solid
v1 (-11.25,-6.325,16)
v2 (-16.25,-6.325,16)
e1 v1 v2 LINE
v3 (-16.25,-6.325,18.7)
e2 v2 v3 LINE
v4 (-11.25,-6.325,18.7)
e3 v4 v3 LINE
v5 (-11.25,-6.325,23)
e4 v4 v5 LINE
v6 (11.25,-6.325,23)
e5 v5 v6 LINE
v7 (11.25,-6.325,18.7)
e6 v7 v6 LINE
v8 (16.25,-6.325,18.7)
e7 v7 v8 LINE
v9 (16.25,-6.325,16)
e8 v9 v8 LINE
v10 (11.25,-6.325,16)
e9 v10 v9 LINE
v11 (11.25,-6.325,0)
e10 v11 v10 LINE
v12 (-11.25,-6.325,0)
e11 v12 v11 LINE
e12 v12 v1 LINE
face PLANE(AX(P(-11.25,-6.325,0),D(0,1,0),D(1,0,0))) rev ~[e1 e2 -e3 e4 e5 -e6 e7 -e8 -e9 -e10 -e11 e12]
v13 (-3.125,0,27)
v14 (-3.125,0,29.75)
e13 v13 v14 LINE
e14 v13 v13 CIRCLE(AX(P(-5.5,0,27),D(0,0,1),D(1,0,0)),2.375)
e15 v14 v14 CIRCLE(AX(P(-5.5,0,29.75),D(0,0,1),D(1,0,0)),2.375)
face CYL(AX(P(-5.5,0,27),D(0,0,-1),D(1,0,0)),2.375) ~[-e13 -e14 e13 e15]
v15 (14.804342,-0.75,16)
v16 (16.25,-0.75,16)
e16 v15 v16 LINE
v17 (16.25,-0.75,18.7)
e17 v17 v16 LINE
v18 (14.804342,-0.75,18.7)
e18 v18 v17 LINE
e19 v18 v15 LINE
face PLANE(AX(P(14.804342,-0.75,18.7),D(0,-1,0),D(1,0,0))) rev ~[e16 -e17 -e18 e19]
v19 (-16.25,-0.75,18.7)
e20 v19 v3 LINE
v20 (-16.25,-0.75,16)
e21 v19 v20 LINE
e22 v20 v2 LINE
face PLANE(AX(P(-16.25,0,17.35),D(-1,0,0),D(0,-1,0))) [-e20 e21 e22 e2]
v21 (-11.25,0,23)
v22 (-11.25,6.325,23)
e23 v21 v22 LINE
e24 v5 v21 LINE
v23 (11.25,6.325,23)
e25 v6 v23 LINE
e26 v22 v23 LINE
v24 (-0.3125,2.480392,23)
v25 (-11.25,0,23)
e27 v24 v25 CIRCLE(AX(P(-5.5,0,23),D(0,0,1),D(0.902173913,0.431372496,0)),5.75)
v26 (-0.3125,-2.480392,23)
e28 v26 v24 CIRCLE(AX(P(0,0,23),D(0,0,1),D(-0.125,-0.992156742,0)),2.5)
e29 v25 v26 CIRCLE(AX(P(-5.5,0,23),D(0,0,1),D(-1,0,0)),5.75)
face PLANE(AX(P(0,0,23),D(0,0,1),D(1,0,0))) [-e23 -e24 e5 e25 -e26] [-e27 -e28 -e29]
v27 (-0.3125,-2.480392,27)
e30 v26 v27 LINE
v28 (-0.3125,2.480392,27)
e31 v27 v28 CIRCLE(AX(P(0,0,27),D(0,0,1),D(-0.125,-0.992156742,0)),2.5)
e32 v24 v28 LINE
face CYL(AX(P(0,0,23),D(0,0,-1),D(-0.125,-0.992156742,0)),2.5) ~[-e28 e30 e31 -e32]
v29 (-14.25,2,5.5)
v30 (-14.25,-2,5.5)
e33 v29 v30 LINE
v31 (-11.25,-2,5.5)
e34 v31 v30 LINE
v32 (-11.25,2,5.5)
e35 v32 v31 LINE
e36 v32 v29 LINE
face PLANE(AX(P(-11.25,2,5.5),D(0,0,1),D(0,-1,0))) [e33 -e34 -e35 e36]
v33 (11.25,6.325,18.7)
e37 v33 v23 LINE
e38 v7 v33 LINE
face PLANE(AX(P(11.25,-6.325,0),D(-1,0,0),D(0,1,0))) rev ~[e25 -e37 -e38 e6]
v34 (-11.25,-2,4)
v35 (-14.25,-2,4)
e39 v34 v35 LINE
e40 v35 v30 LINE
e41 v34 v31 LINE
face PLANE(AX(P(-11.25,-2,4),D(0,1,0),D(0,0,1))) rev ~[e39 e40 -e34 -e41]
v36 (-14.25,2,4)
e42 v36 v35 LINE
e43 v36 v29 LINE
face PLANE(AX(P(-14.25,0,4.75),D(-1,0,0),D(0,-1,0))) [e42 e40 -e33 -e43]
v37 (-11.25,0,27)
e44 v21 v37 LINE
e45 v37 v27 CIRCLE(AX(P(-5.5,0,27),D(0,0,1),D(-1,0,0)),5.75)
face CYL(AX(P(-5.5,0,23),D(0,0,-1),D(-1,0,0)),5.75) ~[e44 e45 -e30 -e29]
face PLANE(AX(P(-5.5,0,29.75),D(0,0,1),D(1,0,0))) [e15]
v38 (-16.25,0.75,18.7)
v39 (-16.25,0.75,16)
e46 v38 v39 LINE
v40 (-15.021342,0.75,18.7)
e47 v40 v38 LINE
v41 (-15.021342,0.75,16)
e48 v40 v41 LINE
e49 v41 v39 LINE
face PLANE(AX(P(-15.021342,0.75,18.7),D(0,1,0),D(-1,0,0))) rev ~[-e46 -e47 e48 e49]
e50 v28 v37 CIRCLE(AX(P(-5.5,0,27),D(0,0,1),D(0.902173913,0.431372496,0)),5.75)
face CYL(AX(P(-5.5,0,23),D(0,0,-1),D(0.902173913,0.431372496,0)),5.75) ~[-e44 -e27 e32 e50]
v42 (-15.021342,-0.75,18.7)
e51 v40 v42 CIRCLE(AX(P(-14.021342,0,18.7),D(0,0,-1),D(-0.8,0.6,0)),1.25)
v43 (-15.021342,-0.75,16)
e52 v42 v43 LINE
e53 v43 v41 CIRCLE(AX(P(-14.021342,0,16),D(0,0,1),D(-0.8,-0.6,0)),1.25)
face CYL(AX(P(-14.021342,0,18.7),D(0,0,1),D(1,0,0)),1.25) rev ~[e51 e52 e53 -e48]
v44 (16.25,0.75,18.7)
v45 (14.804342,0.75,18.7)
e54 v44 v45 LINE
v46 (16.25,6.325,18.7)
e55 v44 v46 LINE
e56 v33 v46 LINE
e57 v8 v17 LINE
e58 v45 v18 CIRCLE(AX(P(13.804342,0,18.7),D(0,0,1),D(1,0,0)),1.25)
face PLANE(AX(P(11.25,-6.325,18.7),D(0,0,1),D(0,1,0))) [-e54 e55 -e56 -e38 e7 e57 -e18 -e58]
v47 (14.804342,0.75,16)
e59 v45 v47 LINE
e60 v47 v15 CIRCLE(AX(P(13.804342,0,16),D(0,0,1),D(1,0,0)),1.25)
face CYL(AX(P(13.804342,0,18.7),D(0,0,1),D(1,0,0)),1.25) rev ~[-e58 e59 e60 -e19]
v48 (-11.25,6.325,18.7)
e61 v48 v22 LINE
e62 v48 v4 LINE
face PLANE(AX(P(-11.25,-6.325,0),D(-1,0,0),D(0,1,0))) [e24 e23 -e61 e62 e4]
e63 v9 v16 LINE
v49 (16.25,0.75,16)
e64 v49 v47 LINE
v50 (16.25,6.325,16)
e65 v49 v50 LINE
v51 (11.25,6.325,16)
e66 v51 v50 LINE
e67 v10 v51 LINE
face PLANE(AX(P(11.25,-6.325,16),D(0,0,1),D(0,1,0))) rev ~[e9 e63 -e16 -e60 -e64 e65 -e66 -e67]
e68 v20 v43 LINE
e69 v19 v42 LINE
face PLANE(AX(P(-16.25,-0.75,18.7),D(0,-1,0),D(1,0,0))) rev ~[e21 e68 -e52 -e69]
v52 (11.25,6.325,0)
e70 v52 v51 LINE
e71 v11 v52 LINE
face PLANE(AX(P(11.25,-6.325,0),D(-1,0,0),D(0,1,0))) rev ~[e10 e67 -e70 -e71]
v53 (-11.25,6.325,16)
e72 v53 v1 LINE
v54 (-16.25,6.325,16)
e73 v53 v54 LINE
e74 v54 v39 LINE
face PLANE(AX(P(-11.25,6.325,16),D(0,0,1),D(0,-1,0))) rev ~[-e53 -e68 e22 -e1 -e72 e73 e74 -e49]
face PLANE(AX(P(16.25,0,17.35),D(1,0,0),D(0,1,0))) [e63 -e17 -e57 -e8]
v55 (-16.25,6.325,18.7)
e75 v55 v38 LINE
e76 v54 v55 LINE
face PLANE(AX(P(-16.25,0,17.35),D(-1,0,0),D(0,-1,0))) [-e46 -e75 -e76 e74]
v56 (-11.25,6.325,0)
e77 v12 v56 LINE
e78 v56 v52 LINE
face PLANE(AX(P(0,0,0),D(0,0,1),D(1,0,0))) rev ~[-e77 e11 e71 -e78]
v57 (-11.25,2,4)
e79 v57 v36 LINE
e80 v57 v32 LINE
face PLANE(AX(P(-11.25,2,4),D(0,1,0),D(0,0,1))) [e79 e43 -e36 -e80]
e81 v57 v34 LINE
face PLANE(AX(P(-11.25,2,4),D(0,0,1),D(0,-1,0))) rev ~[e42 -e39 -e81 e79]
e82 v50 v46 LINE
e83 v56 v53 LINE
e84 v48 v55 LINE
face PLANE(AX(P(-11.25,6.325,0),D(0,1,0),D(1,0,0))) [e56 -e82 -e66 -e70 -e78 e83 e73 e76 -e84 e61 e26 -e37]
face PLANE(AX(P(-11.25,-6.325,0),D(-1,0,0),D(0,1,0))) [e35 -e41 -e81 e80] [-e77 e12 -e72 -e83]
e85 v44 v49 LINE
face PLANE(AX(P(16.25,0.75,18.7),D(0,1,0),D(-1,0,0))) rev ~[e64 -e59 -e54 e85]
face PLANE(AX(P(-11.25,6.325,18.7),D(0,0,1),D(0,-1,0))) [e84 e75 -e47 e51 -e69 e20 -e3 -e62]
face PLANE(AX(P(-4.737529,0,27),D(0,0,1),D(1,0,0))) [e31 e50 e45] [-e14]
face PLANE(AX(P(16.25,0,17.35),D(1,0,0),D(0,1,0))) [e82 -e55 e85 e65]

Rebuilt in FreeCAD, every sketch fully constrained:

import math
import FreeCAD as App
import Part
import Sketcher
from FreeCAD import Vector
Q = App.Units.Quantity


def add_polygon(sketch, points):
    """Adds a closed chain of lines whose ends are joined by coincident constraints."""
    first, n = sketch.GeometryCount, len(points)
    for a, b in zip(points, points[1:] + points[:1]):
        sketch.addGeometry(Part.LineSegment(App.Vector(*a, 0), App.Vector(*b, 0)), False)
    for i in range(n):
        sketch.addConstraint(Sketcher.Constraint("Coincident", first + i, 2, first + (i + 1) % n, 1))

doc = App.newDocument("Part")
params = doc.addObject("Spreadsheet::Sheet", "Params")
for row, (alias, value) in enumerate([
    ("sketch1_width", "22.5 mm"),
    ("sketch1_height", "12.65 mm"),
    ("pad1_length", "23 mm"),
    ("sketch2_height", "2.7 mm"),
    ("sketch2_width", "12.65 mm"),
    ("pad2_length", "5 mm"),
    ("sketch3_width", "4 mm"),
    ("sketch3_height", "1.5 mm"),
    ("pad3_length", "3 mm"),
    ("sketch4_diameter", "2.5 mm"),
    ("pocket1_length", "2.7 mm"),
    ("sketch5_height", "2.7 mm"),
    ("sketch5_width", "12.65 mm"),
    ("pad4_length", "5 mm"),
    ("sketch6_diameter", "2.5 mm"),
    ("sketch7_radius", "2.5 mm"),
    ("sketch7_radius2", "5.75 mm"),
    ("pad5_length", "4 mm"),
    ("sketch8_diameter", "4.75 mm"),
    ("pad6_length", "2.75 mm"),
    ("sketch9_radius", "1.25 mm"),
    ("sketch9_height", "1.5 mm"),
    ("sketch10_radius", "1.25 mm"),
    ("sketch10_height", "1.5 mm"),
], start=1):
    params.set(f"A{row}", alias)
    params.set(f"B{row}", "=" + value)
    params.setAlias(f"B{row}", alias)

body = doc.addObject("PartDesign::Body", "Body")

sketch1 = doc.addObject("Sketcher::SketchObject", "Sketch")
body.addObject(sketch1)
sketch1.AttachmentSupport = (doc.XY_Plane, [""])
sketch1.MapMode = "FlatFace"
add_polygon(sketch1, [(-11, 6), (-11, -6), (11, -6), (11, 6)])
sketch1.addConstraint([
    Sketcher.Constraint("Vertical", 0),
    Sketcher.Constraint("Horizontal", 1),
    Sketcher.Constraint("Vertical", 2),
    Sketcher.Constraint("Horizontal", 3),
    Sketcher.Constraint("Symmetric", 0, 2, 2, 2, -1, 1),
    Sketcher.Constraint("DistanceX", 1, 1, 1, 2, Q("22.5 mm")),
    Sketcher.Constraint("DistanceY", 0, 2, 0, 1, Q("12.65 mm")),
])
sketch1.setExpression("Constraints[9]", "Params.sketch1_width")
sketch1.setExpression("Constraints[10]", "Params.sketch1_height")
pad1 = doc.addObject("PartDesign::Pad", "Pad")
body.addObject(pad1)
pad1.Profile = sketch1
pad1.setExpression("Length", "Params.pad1_length")

sketch2 = doc.addObject("Sketcher::SketchObject", "Sketch001")
body.addObject(sketch2)
sketch2.AttachmentSupport = (doc.YZ_Plane, [""])
sketch2.MapMode = "FlatFace"
sketch2.AttachmentOffset = App.Placement(Vector(0, 0, -11.25), App.Rotation())
add_polygon(sketch2, [(6.3, 18.7), (6.3, 16), (-6.3, 16), (-6.3, 18.7)])
sketch2.addConstraint([
    Sketcher.Constraint("Vertical", 0),
    Sketcher.Constraint("Horizontal", 1),
    Sketcher.Constraint("Vertical", 2),
    Sketcher.Constraint("Horizontal", 3),
    Sketcher.Constraint("DistanceY", 0, 2, 0, 1, Q("2.7 mm")),
    Sketcher.Constraint("DistanceY", -1, 1, 0, 2, Q("16 mm")),
    Sketcher.Constraint("DistanceX", 1, 2, 1, 1, Q("12.65 mm")),
    Sketcher.Constraint("DistanceX", -1, 1, 0, 2, Q("6.325 mm")),
])
sketch2.setExpression("Constraints[8]", "Params.sketch2_height")
sketch2.setExpression("Constraints[10]", "Params.sketch2_width")
pad2 = doc.addObject("PartDesign::Pad", "Pad001")
body.addObject(pad2)
pad2.Profile = sketch2
pad2.setExpression("Length", "Params.pad2_length")
pad2.Reversed = True

sketch3 = doc.addObject("Sketcher::SketchObject", "Sketch002")
body.addObject(sketch3)
sketch3.AttachmentSupport = (doc.YZ_Plane, [""])
sketch3.MapMode = "FlatFace"
sketch3.AttachmentOffset = App.Placement(Vector(0, 0, -11.25), App.Rotation())
add_polygon(sketch3, [(2, 5.5), (2, 4), (-2, 4), (-2, 5.5)])
sketch3.addConstraint([
    Sketcher.Constraint("Vertical", 0),
    Sketcher.Constraint("Horizontal", 1),
    Sketcher.Constraint("Vertical", 2),
    Sketcher.Constraint("Horizontal", 3),
    Sketcher.Constraint("DistanceX", 1, 2, 1, 1, Q("4 mm")),
    Sketcher.Constraint("DistanceY", 0, 2, 0, 1, Q("1.5 mm")),
    Sketcher.Constraint("DistanceX", -1, 1, 0, 2, Q("2 mm")),
    Sketcher.Constraint("DistanceY", -1, 1, 0, 2, Q("4 mm")),
])
sketch3.setExpression("Constraints[8]", "Params.sketch3_width")
sketch3.setExpression("Constraints[9]", "Params.sketch3_height")
pad3 = doc.addObject("PartDesign::Pad", "Pad002")
body.addObject(pad3)
pad3.Profile = sketch3
pad3.setExpression("Length", "Params.pad3_length")
pad3.Reversed = True

sketch4 = doc.addObject("Sketcher::SketchObject", "Sketch003")
body.addObject(sketch4)
sketch4.AttachmentSupport = (doc.XY_Plane, [""])
sketch4.MapMode = "FlatFace"
sketch4.AttachmentOffset = App.Placement(Vector(0, 0, 18.7), App.Rotation())
sketch4.addGeometry(Part.Circle(Vector(-14, 0, 0), Vector(0, 0, 1), 1.2), False)
sketch4.addConstraint([
    Sketcher.Constraint("PointOnObject", 0, 3, -1),
    Sketcher.Constraint("Diameter", 0, Q("2.5 mm")),
    Sketcher.Constraint("DistanceX", 0, 3, -1, 1, Q("14.021342 mm")),
])
sketch4.setExpression("Constraints[1]", "Params.sketch4_diameter")
pocket1 = doc.addObject("PartDesign::Pocket", "Pocket")
body.addObject(pocket1)
pocket1.Profile = sketch4
pocket1.setExpression("Length", "Params.pocket1_length")

sketch5 = doc.addObject("Sketcher::SketchObject", "Sketch004")
body.addObject(sketch5)
sketch5.AttachmentSupport = (doc.YZ_Plane, [""])
sketch5.MapMode = "FlatFace"
sketch5.AttachmentOffset = App.Placement(Vector(0, 0, 11.25), App.Rotation())
add_polygon(sketch5, [(-6.3, 18.7), (-6.3, 16), (6.3, 16), (6.3, 18.7)])
sketch5.addConstraint([
    Sketcher.Constraint("Vertical", 0),
    Sketcher.Constraint("Horizontal", 1),
    Sketcher.Constraint("Vertical", 2),
    Sketcher.Constraint("Horizontal", 3),
    Sketcher.Constraint("DistanceY", 0, 2, 0, 1, Q("2.7 mm")),
    Sketcher.Constraint("DistanceY", -1, 1, 0, 2, Q("16 mm")),
    Sketcher.Constraint("DistanceX", 1, 1, 1, 2, Q("12.65 mm")),
    Sketcher.Constraint("DistanceX", 0, 2, -1, 1, Q("6.325 mm")),
])
sketch5.setExpression("Constraints[8]", "Params.sketch5_height")
sketch5.setExpression("Constraints[10]", "Params.sketch5_width")
pad4 = doc.addObject("PartDesign::Pad", "Pad003")
body.addObject(pad4)
pad4.Profile = sketch5
pad4.setExpression("Length", "Params.pad4_length")

sketch6 = doc.addObject("Sketcher::SketchObject", "Sketch005")
body.addObject(sketch6)
sketch6.AttachmentSupport = (doc.XY_Plane, [""])
sketch6.MapMode = "FlatFace"
sketch6.AttachmentOffset = App.Placement(Vector(0, 0, 18.7), App.Rotation())
sketch6.addGeometry(Part.Circle(Vector(13.8, 0, 0), Vector(0, 0, 1), 1.2), False)
sketch6.addConstraint([
    Sketcher.Constraint("PointOnObject", 0, 3, -1),
    Sketcher.Constraint("Diameter", 0, Q("2.5 mm")),
    Sketcher.Constraint("DistanceX", -1, 1, 0, 3, Q("13.804342 mm")),
])
sketch6.setExpression("Constraints[1]", "Params.sketch6_diameter")
pocket2 = doc.addObject("PartDesign::Pocket", "Pocket001")
body.addObject(pocket2)
pocket2.Profile = sketch6
pocket2.Type = "ThroughAll"

sketch7 = doc.addObject("Sketcher::SketchObject", "Sketch006")
body.addObject(sketch7)
sketch7.AttachmentSupport = (doc.XY_Plane, [""])
sketch7.MapMode = "FlatFace"
sketch7.AttachmentOffset = App.Placement(Vector(0, 0, 23), App.Rotation())
sketch7.addGeometry([
    Part.ArcOfCircle(Part.Circle(Vector(0, 0, 0), Vector(0, 0, 1), 2.5), math.radians(-97), math.radians(97)),
    Part.ArcOfCircle(Part.Circle(Vector(-5.5, 0, 0), Vector(0, 0, 1), 5.8), math.radians(26), math.radians(180)),
    Part.ArcOfCircle(Part.Circle(Vector(-5.5, 0, 0), Vector(0, 0, 1), 5.8), math.radians(180), math.radians(334)),
], False)
sketch7.addConstraint([
    Sketcher.Constraint("Coincident", 0, 2, 1, 1),
    Sketcher.Constraint("Tangent", 1, 2, 2, 1),
    Sketcher.Constraint("Coincident", 2, 2, 0, 1),
    Sketcher.Constraint("Coincident", 0, 3, -1, 1),
    Sketcher.Constraint("Equal", 1, 2),
    Sketcher.Constraint("PointOnObject", 1, 3, -1),
    Sketcher.Constraint("PointOnObject", 1, 2, -1),
    Sketcher.Constraint("Radius", 0, Q("2.5 mm")),
    Sketcher.Constraint("Radius", 1, Q("5.75 mm")),
    Sketcher.Constraint("DistanceX", 1, 3, -1, 1, Q("5.5 mm")),
])
sketch7.setExpression("Constraints[7]", "Params.sketch7_radius")
sketch7.setExpression("Constraints[8]", "Params.sketch7_radius2")
pad5 = doc.addObject("PartDesign::Pad", "Pad004")
body.addObject(pad5)
pad5.Profile = sketch7
pad5.setExpression("Length", "Params.pad5_length")

sketch8 = doc.addObject("Sketcher::SketchObject", "Sketch007")
body.addObject(sketch8)
sketch8.AttachmentSupport = (doc.XY_Plane, [""])
sketch8.MapMode = "FlatFace"
sketch8.AttachmentOffset = App.Placement(Vector(0, 0, 27), App.Rotation())
sketch8.addGeometry(Part.Circle(Vector(-5.5, 0, 0), Vector(0, 0, 1), 2.4), False)
sketch8.addConstraint([
    Sketcher.Constraint("PointOnObject", 0, 3, -1),
    Sketcher.Constraint("Diameter", 0, Q("4.75 mm")),
    Sketcher.Constraint("DistanceX", 0, 3, -1, 1, Q("5.5 mm")),
])
sketch8.setExpression("Constraints[1]", "Params.sketch8_diameter")
pad6 = doc.addObject("PartDesign::Pad", "Pad005")
body.addObject(pad6)
pad6.Profile = sketch8
pad6.setExpression("Length", "Params.pad6_length")

sketch9 = doc.addObject("Sketcher::SketchObject", "Sketch008")
body.addObject(sketch9)
sketch9.AttachmentSupport = (doc.XY_Plane, [""])
sketch9.MapMode = "FlatFace"
sketch9.AttachmentOffset = App.Placement(Vector(0, 0, 18.7), App.Rotation())
sketch9.addGeometry([
    Part.LineSegment(Vector(16.2, 0.8, 0), Vector(14.8, 0.8, 0)),
    Part.ArcOfCircle(Part.Circle(Vector(13.8, 0, 0), Vector(0, 0, 1), 1.2), math.radians(0), math.radians(37)),
    Part.ArcOfCircle(Part.Circle(Vector(13.8, 0, 0), Vector(0, 0, 1), 1.2), math.radians(-37), math.radians(0)),
    Part.LineSegment(Vector(14.8, -0.8, 0), Vector(16.2, -0.8, 0)),
    Part.LineSegment(Vector(16.2, -0.8, 0), Vector(16.2, 0.8, 0)),
], False)
sketch9.addConstraint([
    Sketcher.Constraint("Coincident", 0, 2, 1, 2),
    Sketcher.Constraint("Tangent", 1, 1, 2, 2),
    Sketcher.Constraint("Coincident", 2, 1, 3, 1),
    Sketcher.Constraint("Coincident", 3, 2, 4, 1),
    Sketcher.Constraint("Coincident", 4, 2, 0, 1),
    Sketcher.Constraint("Horizontal", 0),
    Sketcher.Constraint("Horizontal", 3),
    Sketcher.Constraint("Vertical", 4),
    Sketcher.Constraint("Equal", 1, 2),
    Sketcher.Constraint("Symmetric", 0, 2, 2, 1, -1),
    Sketcher.Constraint("PointOnObject", 1, 1, -1),
    Sketcher.Constraint("Radius", 1, Q("1.25 mm")),
    Sketcher.Constraint("DistanceY", 4, 1, 4, 2, Q("1.5 mm")),
    Sketcher.Constraint("DistanceX", -1, 1, 3, 2, Q("16.25 mm")),
    Sketcher.Constraint("DistanceX", 0, 2, 0, 1, Q("1.445658 mm")),
])
sketch9.setExpression("Constraints[11]", "Params.sketch9_radius")
sketch9.setExpression("Constraints[12]", "Params.sketch9_height")
pocket3 = doc.addObject("PartDesign::Pocket", "Pocket002")
body.addObject(pocket3)
pocket3.Profile = sketch9
pocket3.Type = "ThroughAll"

sketch10 = doc.addObject("Sketcher::SketchObject", "Sketch009")
body.addObject(sketch10)
sketch10.AttachmentSupport = (doc.XY_Plane, [""])
sketch10.MapMode = "FlatFace"
sketch10.AttachmentOffset = App.Placement(Vector(0, 0, 18.7), App.Rotation())
sketch10.addGeometry([
    Part.LineSegment(Vector(-15, 0.8, 0), Vector(-16.2, 0.8, 0)),
    Part.LineSegment(Vector(-16.2, 0.8, 0), Vector(-16.2, -0.8, 0)),
    Part.LineSegment(Vector(-16.2, -0.8, 0), Vector(-15, -0.8, 0)),
    Part.ArcOfCircle(Part.Circle(Vector(-14, 0, 0), Vector(0, 0, 1), 1.2), math.radians(143), math.radians(217)),
], False)
sketch10.addConstraint([
    Sketcher.Constraint("Coincident", 0, 2, 1, 1),
    Sketcher.Constraint("Coincident", 1, 2, 2, 1),
    Sketcher.Constraint("Coincident", 2, 2, 3, 2),
    Sketcher.Constraint("Coincident", 3, 1, 0, 1),
    Sketcher.Constraint("Horizontal", 0),
    Sketcher.Constraint("Vertical", 1),
    Sketcher.Constraint("Horizontal", 2),
    Sketcher.Constraint("Symmetric", 2, 2, 3, 1, -1),
    Sketcher.Constraint("Radius", 3, Q("1.25 mm")),
    Sketcher.Constraint("DistanceY", 1, 2, 1, 1, Q("1.5 mm")),
    Sketcher.Constraint("DistanceX", 0, 2, -1, 1, Q("16.25 mm")),
    Sketcher.Constraint("DistanceX", 0, 2, 0, 1, Q("1.228658 mm")),
])
sketch10.setExpression("Constraints[8]", "Params.sketch10_radius")
sketch10.setExpression("Constraints[9]", "Params.sketch10_height")
pocket4 = doc.addObject("PartDesign::Pocket", "Pocket003")
body.addObject(pocket4)
pocket4.Profile = sketch10
pocket4.Type = "ThroughAll"

doc.recompute()
